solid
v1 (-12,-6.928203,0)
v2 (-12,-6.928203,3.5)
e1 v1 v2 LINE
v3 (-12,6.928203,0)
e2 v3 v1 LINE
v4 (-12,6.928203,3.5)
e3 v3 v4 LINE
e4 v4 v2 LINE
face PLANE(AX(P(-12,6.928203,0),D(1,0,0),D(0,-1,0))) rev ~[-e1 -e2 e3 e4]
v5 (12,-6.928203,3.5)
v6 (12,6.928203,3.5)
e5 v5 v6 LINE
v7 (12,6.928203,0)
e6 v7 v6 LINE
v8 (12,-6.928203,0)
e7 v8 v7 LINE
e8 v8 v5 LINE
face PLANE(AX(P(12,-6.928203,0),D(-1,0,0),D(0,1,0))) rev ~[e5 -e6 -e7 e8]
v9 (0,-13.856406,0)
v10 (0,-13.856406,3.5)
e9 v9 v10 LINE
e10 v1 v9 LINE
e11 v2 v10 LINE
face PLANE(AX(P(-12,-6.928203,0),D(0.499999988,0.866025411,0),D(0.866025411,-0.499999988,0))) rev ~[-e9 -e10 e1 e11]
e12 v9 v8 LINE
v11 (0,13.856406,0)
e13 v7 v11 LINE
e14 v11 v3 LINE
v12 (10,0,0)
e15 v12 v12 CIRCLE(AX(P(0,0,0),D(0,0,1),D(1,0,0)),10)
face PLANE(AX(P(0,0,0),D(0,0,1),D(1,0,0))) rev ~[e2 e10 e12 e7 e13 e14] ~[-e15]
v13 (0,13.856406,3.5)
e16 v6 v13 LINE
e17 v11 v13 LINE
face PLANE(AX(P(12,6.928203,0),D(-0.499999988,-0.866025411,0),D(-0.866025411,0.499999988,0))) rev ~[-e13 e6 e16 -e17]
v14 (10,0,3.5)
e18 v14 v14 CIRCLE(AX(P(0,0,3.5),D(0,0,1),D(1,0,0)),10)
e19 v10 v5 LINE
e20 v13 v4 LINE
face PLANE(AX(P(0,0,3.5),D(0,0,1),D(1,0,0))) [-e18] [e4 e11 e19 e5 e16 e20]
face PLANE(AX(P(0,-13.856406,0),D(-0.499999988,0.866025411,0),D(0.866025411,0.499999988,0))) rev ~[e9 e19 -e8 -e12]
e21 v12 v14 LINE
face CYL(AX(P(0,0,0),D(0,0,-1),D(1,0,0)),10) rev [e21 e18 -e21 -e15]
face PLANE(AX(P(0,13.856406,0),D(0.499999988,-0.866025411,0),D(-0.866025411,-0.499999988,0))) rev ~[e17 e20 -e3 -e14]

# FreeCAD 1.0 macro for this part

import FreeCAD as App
import Part
import Sketcher
Q = App.Units.Quantity


def add_polygon(sketch, points):
    """Adds a closed chain of lines whose ends are joined by coincident constraints."""
    first, n = sketch.GeometryCount, len(points)
    for a, b in zip(points, points[1:] + points[:1]):
        sketch.addGeometry(Part.LineSegment(App.Vector(*a, 0), App.Vector(*b, 0)), False)
    for i in range(n):
        sketch.addConstraint(Sketcher.Constraint("Coincident", first + i, 2, first + (i + 1) % n, 1))

doc = App.newDocument("Part")
body = doc.addObject("PartDesign::Body", "Body")

# Sketch on XY plane
sketch1 = body.newObject("Sketcher::SketchObject", "Sketch")
sketch1.AttachmentSupport = (doc.getObject("XY_Plane"), [""])
sketch1.MapMode = "FlatFace"
add_polygon(sketch1, [(0, 14), (-12, 7), (-12, -7), (0, -14), (12, -7), (12, 7)])  # lines 0-5
sketch1.addGeometry(Part.Circle(App.Vector(0, 0, 0), App.Vector(0, 0, 1), 10), False)  # 6
sketch1.addConstraint([
    Sketcher.Constraint("Vertical", 1),
    Sketcher.Constraint("Vertical", 4),
    Sketcher.Constraint("Coincident", 6, 3, -1, 1),
    Sketcher.Constraint("Symmetric", 0, 2, 3, 2, -1, 1),
    Sketcher.Constraint("Symmetric", 2, 2, 5, 2, -1, 1),
    Sketcher.Constraint("PointOnObject", 2, 2, -2),
    Sketcher.Constraint("Parallel", 2, 5),
    Sketcher.Constraint("Horizontal", 1, 2, 3, 2),
    Sketcher.Constraint("Diameter", 6, Q("20 mm")),
    Sketcher.Constraint("Angle", 0, Q("-150.000001 deg")),
    Sketcher.Constraint("DistanceX", 0, 2, -1, 1, Q("12 mm")),
    Sketcher.Constraint("DistanceY", 1, 2, 1, 1, Q("13.856406 mm")),
])
pad1 = body.newObject("PartDesign::Pad", "Pad")
pad1.Profile = sketch1
pad1.Length = 3.5

doc.recompute()
